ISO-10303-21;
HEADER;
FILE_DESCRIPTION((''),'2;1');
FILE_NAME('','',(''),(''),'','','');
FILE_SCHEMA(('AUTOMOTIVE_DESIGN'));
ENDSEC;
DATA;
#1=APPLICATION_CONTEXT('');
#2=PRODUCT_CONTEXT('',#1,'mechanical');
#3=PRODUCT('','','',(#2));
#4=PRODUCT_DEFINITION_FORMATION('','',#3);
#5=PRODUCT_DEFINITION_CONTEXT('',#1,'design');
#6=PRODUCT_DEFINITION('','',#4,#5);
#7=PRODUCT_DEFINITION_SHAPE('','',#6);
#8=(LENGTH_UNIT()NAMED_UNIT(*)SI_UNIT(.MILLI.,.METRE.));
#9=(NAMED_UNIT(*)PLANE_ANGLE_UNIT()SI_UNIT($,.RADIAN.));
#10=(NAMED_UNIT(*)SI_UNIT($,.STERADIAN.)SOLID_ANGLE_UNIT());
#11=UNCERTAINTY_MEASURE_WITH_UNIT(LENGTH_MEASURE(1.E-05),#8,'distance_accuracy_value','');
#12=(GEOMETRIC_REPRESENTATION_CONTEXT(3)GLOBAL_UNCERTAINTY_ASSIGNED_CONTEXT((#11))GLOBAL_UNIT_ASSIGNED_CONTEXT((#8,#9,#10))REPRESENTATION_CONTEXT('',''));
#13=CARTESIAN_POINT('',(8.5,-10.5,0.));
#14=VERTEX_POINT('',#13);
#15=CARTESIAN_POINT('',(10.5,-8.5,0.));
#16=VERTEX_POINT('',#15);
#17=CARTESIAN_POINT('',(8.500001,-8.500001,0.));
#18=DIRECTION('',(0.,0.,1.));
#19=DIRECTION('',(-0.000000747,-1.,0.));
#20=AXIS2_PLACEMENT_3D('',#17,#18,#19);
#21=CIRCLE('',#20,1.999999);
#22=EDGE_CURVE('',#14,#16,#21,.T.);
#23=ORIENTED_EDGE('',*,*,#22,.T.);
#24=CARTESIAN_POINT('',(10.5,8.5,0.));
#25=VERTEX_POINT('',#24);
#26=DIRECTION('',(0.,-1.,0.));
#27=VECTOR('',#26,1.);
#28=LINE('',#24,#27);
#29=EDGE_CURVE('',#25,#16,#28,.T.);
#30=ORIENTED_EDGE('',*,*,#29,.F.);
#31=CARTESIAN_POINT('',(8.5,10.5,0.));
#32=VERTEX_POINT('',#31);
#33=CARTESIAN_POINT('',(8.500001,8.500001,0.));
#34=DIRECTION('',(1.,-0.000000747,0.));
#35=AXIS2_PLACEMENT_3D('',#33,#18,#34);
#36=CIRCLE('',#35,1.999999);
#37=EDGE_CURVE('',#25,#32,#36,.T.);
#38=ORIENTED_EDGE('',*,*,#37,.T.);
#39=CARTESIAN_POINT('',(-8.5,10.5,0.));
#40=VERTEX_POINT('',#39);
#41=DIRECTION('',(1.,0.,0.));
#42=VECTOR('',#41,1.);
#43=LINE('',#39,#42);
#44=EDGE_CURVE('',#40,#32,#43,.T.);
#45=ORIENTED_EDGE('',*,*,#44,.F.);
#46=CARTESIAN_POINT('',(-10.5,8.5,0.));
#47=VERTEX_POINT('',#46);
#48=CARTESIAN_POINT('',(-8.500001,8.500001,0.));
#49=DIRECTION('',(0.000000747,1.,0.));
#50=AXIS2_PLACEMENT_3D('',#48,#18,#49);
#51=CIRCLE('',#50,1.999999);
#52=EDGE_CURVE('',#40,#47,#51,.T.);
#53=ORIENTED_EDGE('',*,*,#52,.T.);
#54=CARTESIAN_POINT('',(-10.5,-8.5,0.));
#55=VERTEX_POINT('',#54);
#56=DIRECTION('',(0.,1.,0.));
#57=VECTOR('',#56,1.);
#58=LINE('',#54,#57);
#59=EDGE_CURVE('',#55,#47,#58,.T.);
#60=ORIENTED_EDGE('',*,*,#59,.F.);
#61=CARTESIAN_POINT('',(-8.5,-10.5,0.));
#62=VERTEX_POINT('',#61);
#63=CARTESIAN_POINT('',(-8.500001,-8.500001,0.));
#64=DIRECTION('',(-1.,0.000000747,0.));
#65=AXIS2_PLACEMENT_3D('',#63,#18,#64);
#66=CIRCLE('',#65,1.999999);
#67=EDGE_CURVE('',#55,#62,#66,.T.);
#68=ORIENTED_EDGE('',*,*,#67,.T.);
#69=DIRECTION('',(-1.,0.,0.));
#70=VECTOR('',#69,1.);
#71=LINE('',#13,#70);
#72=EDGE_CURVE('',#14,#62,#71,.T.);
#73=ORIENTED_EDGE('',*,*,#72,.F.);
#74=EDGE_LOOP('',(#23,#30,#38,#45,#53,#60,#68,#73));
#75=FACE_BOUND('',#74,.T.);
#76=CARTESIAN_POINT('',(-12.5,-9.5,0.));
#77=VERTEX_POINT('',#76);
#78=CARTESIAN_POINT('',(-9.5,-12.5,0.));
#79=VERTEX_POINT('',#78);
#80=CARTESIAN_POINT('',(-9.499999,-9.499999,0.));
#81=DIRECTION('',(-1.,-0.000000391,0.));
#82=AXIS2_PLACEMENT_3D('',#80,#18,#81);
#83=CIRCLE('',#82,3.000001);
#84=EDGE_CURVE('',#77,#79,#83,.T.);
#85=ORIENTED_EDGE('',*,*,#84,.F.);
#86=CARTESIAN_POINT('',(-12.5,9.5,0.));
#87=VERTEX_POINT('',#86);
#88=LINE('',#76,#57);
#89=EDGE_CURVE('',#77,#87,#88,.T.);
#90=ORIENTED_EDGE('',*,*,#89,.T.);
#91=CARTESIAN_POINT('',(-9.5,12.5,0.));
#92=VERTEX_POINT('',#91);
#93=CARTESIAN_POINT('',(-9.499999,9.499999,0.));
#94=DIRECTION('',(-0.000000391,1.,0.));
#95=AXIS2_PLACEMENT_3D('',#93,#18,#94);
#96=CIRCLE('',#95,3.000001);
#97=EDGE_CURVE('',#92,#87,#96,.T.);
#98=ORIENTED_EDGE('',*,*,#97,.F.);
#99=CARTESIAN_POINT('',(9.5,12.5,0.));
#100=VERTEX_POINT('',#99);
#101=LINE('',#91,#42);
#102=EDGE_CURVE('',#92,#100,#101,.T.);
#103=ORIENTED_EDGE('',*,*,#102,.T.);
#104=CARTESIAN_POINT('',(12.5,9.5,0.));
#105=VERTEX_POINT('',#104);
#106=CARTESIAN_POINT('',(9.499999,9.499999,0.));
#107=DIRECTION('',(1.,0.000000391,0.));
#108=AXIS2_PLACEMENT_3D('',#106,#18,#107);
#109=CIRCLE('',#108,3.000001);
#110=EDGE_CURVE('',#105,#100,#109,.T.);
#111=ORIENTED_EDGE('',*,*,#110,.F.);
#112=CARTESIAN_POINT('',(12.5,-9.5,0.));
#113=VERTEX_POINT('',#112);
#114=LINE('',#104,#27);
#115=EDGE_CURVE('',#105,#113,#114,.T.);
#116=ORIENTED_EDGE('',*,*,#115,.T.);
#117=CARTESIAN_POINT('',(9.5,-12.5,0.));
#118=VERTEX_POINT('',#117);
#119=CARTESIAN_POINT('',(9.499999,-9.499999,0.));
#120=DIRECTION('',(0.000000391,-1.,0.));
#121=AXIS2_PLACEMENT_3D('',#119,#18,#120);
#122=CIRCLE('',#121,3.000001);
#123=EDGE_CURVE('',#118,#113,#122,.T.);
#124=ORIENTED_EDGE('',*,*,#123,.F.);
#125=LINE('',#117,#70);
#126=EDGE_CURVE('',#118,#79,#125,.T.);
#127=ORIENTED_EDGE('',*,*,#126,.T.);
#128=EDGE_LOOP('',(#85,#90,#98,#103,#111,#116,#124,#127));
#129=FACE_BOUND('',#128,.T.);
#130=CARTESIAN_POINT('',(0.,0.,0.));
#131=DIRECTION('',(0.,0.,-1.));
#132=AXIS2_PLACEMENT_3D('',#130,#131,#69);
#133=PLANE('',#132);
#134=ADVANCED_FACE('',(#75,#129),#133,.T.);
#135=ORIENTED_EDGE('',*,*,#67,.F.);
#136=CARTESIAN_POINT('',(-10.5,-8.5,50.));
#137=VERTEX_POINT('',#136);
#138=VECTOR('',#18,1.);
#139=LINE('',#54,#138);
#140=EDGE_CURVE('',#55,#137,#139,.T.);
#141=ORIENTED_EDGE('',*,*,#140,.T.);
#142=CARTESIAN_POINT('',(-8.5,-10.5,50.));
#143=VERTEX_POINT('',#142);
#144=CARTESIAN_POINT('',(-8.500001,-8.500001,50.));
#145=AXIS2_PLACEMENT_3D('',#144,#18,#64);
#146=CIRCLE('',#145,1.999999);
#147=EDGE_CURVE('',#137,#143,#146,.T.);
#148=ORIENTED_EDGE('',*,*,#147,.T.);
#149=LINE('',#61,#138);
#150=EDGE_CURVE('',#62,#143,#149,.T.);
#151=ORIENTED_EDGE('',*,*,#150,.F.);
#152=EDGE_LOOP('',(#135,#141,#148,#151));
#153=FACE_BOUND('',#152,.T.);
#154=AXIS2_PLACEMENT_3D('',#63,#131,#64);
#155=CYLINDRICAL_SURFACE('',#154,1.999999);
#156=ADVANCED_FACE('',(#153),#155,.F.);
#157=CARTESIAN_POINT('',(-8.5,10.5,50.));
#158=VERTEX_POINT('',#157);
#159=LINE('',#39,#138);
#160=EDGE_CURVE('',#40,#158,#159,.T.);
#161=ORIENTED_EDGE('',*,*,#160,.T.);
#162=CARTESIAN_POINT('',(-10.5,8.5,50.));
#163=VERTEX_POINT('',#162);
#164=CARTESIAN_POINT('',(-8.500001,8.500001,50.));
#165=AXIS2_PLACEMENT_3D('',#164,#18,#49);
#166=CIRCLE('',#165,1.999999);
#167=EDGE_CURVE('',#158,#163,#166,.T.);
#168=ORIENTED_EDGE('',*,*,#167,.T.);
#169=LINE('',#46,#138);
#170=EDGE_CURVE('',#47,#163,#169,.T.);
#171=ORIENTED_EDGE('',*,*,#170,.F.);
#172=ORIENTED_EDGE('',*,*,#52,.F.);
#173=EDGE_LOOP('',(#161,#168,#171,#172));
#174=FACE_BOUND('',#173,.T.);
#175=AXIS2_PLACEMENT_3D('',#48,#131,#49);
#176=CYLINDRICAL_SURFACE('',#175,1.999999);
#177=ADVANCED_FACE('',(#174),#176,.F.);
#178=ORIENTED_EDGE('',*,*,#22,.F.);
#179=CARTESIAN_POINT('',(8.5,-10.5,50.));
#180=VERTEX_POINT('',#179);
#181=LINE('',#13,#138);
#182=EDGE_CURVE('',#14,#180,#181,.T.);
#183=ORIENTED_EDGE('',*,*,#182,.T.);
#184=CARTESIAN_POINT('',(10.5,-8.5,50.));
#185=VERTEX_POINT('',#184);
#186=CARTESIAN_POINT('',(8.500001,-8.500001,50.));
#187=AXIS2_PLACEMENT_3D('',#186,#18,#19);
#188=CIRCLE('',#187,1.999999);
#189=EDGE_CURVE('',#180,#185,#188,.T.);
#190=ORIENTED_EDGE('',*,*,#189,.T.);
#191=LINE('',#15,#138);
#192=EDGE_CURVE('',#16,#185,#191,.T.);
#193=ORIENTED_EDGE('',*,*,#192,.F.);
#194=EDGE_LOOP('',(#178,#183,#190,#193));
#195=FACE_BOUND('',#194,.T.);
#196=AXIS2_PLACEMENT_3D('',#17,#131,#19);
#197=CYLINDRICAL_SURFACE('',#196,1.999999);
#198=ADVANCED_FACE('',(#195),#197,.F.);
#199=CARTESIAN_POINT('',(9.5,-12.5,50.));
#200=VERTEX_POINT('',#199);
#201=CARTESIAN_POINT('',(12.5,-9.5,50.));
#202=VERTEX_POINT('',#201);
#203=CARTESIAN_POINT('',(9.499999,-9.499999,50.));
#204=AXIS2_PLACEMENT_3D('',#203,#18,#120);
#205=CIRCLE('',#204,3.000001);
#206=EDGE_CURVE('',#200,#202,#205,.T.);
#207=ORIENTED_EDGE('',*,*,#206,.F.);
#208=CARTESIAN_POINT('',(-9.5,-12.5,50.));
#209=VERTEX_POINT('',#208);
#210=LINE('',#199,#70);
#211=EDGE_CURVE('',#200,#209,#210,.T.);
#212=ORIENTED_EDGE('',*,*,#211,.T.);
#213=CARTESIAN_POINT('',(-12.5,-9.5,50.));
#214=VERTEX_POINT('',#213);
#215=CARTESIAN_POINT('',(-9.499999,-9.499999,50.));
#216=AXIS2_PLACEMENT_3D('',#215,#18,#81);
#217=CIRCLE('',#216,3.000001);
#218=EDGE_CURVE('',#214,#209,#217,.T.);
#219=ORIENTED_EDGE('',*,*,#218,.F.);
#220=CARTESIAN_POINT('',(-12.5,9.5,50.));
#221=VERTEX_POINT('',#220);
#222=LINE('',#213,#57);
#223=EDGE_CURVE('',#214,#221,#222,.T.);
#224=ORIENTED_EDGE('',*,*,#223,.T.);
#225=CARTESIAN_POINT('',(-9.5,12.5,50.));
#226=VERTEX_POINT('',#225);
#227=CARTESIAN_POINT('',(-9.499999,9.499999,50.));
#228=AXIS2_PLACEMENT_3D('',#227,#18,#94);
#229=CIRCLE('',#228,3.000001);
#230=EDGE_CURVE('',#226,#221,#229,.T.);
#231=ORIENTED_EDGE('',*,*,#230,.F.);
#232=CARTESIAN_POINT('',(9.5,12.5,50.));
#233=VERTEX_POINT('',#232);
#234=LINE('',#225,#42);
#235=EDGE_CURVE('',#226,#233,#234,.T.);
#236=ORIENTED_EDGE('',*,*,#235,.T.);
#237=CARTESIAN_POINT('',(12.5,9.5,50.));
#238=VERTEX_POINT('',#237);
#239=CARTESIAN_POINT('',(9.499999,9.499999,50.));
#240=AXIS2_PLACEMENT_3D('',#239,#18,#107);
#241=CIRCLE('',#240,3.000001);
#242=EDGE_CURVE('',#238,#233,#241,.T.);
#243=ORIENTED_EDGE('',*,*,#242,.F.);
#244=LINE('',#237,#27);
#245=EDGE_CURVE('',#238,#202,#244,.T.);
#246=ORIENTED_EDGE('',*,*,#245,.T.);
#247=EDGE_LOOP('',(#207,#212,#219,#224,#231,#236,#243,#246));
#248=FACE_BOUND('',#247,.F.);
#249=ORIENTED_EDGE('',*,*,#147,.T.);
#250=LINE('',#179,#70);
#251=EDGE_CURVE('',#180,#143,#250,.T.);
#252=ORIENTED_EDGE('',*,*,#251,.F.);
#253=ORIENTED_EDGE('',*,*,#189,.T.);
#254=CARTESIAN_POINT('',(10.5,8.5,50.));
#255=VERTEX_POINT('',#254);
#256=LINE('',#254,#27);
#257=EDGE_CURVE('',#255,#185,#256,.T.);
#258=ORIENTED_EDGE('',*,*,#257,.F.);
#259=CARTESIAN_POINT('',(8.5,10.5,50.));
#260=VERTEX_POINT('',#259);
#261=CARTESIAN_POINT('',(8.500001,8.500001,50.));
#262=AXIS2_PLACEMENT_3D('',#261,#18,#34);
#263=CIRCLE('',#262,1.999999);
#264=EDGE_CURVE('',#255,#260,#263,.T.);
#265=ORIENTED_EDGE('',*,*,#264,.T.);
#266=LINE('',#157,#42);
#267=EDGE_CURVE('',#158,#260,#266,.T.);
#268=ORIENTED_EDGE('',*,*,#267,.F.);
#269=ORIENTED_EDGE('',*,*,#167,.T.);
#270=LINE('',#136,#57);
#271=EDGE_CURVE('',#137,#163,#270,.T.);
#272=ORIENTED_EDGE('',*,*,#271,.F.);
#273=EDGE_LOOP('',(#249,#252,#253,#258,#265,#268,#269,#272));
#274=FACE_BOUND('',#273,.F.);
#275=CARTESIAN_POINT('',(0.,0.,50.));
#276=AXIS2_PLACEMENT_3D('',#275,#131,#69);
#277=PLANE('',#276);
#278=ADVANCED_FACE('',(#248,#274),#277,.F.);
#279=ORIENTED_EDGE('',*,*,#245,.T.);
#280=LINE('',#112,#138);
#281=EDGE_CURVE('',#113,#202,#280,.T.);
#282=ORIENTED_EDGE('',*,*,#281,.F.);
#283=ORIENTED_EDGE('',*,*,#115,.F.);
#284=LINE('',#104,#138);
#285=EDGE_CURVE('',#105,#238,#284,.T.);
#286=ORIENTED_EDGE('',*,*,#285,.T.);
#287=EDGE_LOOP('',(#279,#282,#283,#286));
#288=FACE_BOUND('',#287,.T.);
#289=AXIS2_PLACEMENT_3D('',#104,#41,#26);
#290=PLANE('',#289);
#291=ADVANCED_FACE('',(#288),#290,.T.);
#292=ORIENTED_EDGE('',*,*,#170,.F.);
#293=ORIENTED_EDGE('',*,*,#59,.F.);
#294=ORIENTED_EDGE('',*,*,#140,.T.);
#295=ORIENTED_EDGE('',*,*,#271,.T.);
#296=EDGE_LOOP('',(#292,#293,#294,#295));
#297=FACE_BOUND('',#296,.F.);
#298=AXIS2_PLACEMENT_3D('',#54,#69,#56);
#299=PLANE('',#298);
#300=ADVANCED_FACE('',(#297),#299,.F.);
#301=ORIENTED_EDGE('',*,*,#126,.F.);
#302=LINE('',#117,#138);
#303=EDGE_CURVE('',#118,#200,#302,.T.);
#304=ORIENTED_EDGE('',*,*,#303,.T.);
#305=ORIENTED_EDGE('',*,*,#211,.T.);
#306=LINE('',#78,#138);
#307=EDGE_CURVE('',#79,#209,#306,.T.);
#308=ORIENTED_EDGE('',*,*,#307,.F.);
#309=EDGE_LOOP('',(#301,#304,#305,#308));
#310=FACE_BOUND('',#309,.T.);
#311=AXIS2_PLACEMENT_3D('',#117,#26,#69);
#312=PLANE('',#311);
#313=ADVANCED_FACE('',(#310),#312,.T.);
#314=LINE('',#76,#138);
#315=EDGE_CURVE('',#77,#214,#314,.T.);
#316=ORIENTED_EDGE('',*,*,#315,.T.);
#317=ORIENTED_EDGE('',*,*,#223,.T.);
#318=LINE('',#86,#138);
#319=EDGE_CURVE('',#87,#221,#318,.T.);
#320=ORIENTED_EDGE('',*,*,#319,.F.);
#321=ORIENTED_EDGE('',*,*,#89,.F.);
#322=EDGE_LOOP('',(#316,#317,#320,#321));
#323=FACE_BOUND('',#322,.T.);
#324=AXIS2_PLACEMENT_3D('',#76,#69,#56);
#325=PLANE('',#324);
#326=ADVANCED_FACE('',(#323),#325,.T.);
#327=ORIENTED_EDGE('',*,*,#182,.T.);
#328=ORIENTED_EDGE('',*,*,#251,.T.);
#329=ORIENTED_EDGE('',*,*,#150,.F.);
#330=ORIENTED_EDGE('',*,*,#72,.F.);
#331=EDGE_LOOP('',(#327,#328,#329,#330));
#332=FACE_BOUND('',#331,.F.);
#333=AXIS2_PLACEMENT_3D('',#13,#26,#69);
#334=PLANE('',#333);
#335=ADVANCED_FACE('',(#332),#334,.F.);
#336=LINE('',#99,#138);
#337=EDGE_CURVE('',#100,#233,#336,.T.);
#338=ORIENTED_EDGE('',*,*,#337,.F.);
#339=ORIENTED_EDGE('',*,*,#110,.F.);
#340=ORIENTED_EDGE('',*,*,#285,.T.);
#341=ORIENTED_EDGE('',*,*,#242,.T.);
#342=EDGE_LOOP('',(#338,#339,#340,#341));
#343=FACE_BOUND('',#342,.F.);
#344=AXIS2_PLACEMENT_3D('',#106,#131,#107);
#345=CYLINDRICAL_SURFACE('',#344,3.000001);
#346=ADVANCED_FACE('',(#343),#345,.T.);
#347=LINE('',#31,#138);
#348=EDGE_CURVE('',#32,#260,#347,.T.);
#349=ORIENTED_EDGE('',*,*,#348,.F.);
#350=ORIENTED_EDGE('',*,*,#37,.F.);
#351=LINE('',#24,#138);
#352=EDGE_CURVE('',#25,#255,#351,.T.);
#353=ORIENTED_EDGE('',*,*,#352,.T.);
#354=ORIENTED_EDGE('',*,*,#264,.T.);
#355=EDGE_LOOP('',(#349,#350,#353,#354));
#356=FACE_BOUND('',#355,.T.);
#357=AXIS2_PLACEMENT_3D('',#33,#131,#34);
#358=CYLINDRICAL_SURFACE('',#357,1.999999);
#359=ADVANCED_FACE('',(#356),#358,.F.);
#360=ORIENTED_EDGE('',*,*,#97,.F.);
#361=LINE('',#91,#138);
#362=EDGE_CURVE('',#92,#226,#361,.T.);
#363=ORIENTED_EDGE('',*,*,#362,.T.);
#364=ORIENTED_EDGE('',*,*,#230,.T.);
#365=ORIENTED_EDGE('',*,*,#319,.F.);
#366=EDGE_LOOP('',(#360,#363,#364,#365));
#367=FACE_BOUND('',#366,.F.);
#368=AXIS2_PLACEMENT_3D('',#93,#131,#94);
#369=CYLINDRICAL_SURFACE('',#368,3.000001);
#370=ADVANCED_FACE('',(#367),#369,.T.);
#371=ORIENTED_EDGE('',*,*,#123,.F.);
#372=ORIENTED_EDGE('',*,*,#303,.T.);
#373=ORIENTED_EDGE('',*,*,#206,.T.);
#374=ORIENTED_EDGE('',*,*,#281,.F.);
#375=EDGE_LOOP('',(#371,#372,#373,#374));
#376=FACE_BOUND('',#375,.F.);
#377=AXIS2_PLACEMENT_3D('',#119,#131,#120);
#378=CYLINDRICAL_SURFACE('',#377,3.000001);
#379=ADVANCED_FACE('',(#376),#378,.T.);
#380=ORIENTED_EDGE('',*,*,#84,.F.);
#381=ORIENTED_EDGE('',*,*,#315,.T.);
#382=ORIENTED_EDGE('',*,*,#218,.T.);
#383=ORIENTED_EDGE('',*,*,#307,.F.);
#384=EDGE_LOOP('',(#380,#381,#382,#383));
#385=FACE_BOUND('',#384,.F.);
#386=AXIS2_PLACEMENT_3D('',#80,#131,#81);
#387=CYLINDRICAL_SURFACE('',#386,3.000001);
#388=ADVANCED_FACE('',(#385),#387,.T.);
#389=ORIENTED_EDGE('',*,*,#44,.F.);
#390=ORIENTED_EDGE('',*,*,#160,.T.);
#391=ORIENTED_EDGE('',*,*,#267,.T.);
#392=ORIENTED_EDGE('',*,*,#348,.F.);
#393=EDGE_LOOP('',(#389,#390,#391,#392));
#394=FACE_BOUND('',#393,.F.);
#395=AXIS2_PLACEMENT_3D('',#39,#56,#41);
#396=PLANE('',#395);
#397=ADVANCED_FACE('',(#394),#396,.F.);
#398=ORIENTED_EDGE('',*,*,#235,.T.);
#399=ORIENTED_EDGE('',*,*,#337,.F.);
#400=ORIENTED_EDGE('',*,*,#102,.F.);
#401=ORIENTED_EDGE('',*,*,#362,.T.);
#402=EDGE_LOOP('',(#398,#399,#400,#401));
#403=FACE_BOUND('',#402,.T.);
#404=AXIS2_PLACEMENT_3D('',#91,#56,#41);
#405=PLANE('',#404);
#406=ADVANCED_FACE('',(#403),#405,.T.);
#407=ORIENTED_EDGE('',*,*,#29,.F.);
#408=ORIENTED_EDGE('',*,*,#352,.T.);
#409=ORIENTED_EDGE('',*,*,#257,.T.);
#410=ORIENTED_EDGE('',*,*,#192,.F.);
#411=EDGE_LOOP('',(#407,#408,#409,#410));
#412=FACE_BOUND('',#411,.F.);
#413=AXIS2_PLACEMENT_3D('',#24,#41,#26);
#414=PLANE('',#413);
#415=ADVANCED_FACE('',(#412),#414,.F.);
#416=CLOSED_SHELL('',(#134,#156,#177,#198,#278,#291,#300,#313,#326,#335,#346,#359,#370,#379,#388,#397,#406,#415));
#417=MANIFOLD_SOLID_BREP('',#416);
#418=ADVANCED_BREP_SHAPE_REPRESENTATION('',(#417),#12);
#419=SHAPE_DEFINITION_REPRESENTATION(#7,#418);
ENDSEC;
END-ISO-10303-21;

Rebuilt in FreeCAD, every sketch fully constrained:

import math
import FreeCAD as App
import Part
import Sketcher

doc = App.newDocument("Part")
body = doc.addObject("PartDesign::Body", "Body")

# Sketch on XY plane
sketch1 = doc.addObject("Sketcher::SketchObject", "Sketch")
body.addObject(sketch1)
sketch1.AttachmentSupport = (doc.XY_Plane, [""])
sketch1.MapMode = "FlatFace"
sketch1.addGeometry([
    Part.LineSegment(App.Vector(9.5, 12.5, 0), App.Vector(-9.5, 12.5, 0)),  # 0
    Part.ArcOfCircle(Part.Circle(App.Vector(-9.499999, 9.499999, 0), App.Vector(0, 0, 1), 3.000001), math.radians(90.000022), math.radians(179.999978)),  # 1
    Part.LineSegment(App.Vector(-12.5, 9.5, 0), App.Vector(-12.5, -9.5, 0)),  # 2
    Part.ArcOfCircle(Part.Circle(App.Vector(-9.499999, -9.499999, 0), App.Vector(0, 0, 1), 3.000001), math.radians(-179.999978), math.radians(-90.000022)),  # 3
    Part.LineSegment(App.Vector(-9.5, -12.5, 0), App.Vector(9.5, -12.5, 0)),  # 4
    Part.ArcOfCircle(Part.Circle(App.Vector(9.499999, -9.499999, 0), App.Vector(0, 0, 1), 3.000001), math.radians(-89.999978), math.radians(-0.000022)),  # 5
    Part.LineSegment(App.Vector(12.5, -9.5, 0), App.Vector(12.5, 9.5, 0)),  # 6
    Part.ArcOfCircle(Part.Circle(App.Vector(9.499999, 9.499999, 0), App.Vector(0, 0, 1), 3.000001), math.radians(0.000022), math.radians(89.999978)),  # 7
    Part.LineSegment(App.Vector(-8.5, 10.5, 0), App.Vector(8.5, 10.5, 0)),  # 8
    Part.ArcOfCircle(Part.Circle(App.Vector(8.500001, 8.500001, 0), App.Vector(0, 0, 1), 1.999999), math.radians(-0.000043), math.radians(90.000043)),  # 9
    Part.LineSegment(App.Vector(10.5, 8.5, 0), App.Vector(10.5, -8.5, 0)),  # 10
    Part.ArcOfCircle(Part.Circle(App.Vector(8.500001, -8.500001, 0), App.Vector(0, 0, 1), 1.999999), math.radians(-90.000043), math.radians(0.000043)),  # 11
    Part.LineSegment(App.Vector(8.5, -10.5, 0), App.Vector(-8.5, -10.5, 0)),  # 12
    Part.ArcOfCircle(Part.Circle(App.Vector(-8.500001, -8.500001, 0), App.Vector(0, 0, 1), 1.999999), math.radians(179.999957), math.radians(270.000043)),  # 13
    Part.LineSegment(App.Vector(-10.5, -8.5, 0), App.Vector(-10.5, 8.5, 0)),  # 14
    Part.ArcOfCircle(Part.Circle(App.Vector(-8.500001, 8.500001, 0), App.Vector(0, 0, 1), 1.999999), math.radians(89.999957), math.radians(180.000043)),  # 15
], False)
sketch1.addConstraint([
    Sketcher.Constraint("Tangent", 0, 2, 1, 1),
    Sketcher.Constraint("Tangent", 1, 2, 2, 1),
    Sketcher.Constraint("Tangent", 2, 2, 3, 1),
    Sketcher.Constraint("Tangent", 3, 2, 4, 1),
    Sketcher.Constraint("Tangent", 4, 2, 5, 1),
    Sketcher.Constraint("Tangent", 5, 2, 6, 1),
    Sketcher.Constraint("Tangent", 6, 2, 7, 1),
    Sketcher.Constraint("Tangent", 7, 2, 0, 1),
    Sketcher.Constraint("Tangent", 8, 2, 9, 2),
    Sketcher.Constraint("Tangent", 9, 1, 10, 1),
    Sketcher.Constraint("Tangent", 10, 2, 11, 2),
    Sketcher.Constraint("Tangent", 11, 1, 12, 1),
    Sketcher.Constraint("Tangent", 12, 2, 13, 2),
    Sketcher.Constraint("Tangent", 13, 1, 14, 1),
    Sketcher.Constraint("Tangent", 14, 2, 15, 2),
    Sketcher.Constraint("Tangent", 15, 1, 8, 1),
    Sketcher.Constraint("Horizontal", 0),
    Sketcher.Constraint("Vertical", 2),
    Sketcher.Constraint("Horizontal", 4),
    Sketcher.Constraint("Vertical", 6),
    Sketcher.Constraint("Horizontal", 8),
    Sketcher.Constraint("Vertical", 10),
    Sketcher.Constraint("Horizontal", 12),
    Sketcher.Constraint("Vertical", 14),
    Sketcher.Constraint("Equal", 1, 3),
    Sketcher.Constraint("Equal", 3, 5),
    Sketcher.Constraint("Equal", 5, 7),
    Sketcher.Constraint("Equal", 9, 11),
    Sketcher.Constraint("Equal", 11, 13),
    Sketcher.Constraint("Equal", 13, 15),
    Sketcher.Constraint("Symmetric", 1, 3, 5, 3, -1, 1),
    Sketcher.Constraint("Symmetric", 9, 3, 13, 3, -1, 1),
    Sketcher.Constraint("Equal", 4, 2),
    Sketcher.Constraint("Equal", 12, 10),
    Sketcher.Constraint("Radius", 1, 3.000001),
    Sketcher.Constraint("Radius", 9, 1.999999),
    Sketcher.Constraint("DistanceX", 0, 2, 0, 1, 19.0),
    Sketcher.Constraint("DistanceX", 8, 1, 8, 2, 17.0),
])
pad1 = doc.addObject("PartDesign::Pad", "Pad")
body.addObject(pad1)
pad1.Profile = sketch1
pad1.Length = 50

doc.recompute()
